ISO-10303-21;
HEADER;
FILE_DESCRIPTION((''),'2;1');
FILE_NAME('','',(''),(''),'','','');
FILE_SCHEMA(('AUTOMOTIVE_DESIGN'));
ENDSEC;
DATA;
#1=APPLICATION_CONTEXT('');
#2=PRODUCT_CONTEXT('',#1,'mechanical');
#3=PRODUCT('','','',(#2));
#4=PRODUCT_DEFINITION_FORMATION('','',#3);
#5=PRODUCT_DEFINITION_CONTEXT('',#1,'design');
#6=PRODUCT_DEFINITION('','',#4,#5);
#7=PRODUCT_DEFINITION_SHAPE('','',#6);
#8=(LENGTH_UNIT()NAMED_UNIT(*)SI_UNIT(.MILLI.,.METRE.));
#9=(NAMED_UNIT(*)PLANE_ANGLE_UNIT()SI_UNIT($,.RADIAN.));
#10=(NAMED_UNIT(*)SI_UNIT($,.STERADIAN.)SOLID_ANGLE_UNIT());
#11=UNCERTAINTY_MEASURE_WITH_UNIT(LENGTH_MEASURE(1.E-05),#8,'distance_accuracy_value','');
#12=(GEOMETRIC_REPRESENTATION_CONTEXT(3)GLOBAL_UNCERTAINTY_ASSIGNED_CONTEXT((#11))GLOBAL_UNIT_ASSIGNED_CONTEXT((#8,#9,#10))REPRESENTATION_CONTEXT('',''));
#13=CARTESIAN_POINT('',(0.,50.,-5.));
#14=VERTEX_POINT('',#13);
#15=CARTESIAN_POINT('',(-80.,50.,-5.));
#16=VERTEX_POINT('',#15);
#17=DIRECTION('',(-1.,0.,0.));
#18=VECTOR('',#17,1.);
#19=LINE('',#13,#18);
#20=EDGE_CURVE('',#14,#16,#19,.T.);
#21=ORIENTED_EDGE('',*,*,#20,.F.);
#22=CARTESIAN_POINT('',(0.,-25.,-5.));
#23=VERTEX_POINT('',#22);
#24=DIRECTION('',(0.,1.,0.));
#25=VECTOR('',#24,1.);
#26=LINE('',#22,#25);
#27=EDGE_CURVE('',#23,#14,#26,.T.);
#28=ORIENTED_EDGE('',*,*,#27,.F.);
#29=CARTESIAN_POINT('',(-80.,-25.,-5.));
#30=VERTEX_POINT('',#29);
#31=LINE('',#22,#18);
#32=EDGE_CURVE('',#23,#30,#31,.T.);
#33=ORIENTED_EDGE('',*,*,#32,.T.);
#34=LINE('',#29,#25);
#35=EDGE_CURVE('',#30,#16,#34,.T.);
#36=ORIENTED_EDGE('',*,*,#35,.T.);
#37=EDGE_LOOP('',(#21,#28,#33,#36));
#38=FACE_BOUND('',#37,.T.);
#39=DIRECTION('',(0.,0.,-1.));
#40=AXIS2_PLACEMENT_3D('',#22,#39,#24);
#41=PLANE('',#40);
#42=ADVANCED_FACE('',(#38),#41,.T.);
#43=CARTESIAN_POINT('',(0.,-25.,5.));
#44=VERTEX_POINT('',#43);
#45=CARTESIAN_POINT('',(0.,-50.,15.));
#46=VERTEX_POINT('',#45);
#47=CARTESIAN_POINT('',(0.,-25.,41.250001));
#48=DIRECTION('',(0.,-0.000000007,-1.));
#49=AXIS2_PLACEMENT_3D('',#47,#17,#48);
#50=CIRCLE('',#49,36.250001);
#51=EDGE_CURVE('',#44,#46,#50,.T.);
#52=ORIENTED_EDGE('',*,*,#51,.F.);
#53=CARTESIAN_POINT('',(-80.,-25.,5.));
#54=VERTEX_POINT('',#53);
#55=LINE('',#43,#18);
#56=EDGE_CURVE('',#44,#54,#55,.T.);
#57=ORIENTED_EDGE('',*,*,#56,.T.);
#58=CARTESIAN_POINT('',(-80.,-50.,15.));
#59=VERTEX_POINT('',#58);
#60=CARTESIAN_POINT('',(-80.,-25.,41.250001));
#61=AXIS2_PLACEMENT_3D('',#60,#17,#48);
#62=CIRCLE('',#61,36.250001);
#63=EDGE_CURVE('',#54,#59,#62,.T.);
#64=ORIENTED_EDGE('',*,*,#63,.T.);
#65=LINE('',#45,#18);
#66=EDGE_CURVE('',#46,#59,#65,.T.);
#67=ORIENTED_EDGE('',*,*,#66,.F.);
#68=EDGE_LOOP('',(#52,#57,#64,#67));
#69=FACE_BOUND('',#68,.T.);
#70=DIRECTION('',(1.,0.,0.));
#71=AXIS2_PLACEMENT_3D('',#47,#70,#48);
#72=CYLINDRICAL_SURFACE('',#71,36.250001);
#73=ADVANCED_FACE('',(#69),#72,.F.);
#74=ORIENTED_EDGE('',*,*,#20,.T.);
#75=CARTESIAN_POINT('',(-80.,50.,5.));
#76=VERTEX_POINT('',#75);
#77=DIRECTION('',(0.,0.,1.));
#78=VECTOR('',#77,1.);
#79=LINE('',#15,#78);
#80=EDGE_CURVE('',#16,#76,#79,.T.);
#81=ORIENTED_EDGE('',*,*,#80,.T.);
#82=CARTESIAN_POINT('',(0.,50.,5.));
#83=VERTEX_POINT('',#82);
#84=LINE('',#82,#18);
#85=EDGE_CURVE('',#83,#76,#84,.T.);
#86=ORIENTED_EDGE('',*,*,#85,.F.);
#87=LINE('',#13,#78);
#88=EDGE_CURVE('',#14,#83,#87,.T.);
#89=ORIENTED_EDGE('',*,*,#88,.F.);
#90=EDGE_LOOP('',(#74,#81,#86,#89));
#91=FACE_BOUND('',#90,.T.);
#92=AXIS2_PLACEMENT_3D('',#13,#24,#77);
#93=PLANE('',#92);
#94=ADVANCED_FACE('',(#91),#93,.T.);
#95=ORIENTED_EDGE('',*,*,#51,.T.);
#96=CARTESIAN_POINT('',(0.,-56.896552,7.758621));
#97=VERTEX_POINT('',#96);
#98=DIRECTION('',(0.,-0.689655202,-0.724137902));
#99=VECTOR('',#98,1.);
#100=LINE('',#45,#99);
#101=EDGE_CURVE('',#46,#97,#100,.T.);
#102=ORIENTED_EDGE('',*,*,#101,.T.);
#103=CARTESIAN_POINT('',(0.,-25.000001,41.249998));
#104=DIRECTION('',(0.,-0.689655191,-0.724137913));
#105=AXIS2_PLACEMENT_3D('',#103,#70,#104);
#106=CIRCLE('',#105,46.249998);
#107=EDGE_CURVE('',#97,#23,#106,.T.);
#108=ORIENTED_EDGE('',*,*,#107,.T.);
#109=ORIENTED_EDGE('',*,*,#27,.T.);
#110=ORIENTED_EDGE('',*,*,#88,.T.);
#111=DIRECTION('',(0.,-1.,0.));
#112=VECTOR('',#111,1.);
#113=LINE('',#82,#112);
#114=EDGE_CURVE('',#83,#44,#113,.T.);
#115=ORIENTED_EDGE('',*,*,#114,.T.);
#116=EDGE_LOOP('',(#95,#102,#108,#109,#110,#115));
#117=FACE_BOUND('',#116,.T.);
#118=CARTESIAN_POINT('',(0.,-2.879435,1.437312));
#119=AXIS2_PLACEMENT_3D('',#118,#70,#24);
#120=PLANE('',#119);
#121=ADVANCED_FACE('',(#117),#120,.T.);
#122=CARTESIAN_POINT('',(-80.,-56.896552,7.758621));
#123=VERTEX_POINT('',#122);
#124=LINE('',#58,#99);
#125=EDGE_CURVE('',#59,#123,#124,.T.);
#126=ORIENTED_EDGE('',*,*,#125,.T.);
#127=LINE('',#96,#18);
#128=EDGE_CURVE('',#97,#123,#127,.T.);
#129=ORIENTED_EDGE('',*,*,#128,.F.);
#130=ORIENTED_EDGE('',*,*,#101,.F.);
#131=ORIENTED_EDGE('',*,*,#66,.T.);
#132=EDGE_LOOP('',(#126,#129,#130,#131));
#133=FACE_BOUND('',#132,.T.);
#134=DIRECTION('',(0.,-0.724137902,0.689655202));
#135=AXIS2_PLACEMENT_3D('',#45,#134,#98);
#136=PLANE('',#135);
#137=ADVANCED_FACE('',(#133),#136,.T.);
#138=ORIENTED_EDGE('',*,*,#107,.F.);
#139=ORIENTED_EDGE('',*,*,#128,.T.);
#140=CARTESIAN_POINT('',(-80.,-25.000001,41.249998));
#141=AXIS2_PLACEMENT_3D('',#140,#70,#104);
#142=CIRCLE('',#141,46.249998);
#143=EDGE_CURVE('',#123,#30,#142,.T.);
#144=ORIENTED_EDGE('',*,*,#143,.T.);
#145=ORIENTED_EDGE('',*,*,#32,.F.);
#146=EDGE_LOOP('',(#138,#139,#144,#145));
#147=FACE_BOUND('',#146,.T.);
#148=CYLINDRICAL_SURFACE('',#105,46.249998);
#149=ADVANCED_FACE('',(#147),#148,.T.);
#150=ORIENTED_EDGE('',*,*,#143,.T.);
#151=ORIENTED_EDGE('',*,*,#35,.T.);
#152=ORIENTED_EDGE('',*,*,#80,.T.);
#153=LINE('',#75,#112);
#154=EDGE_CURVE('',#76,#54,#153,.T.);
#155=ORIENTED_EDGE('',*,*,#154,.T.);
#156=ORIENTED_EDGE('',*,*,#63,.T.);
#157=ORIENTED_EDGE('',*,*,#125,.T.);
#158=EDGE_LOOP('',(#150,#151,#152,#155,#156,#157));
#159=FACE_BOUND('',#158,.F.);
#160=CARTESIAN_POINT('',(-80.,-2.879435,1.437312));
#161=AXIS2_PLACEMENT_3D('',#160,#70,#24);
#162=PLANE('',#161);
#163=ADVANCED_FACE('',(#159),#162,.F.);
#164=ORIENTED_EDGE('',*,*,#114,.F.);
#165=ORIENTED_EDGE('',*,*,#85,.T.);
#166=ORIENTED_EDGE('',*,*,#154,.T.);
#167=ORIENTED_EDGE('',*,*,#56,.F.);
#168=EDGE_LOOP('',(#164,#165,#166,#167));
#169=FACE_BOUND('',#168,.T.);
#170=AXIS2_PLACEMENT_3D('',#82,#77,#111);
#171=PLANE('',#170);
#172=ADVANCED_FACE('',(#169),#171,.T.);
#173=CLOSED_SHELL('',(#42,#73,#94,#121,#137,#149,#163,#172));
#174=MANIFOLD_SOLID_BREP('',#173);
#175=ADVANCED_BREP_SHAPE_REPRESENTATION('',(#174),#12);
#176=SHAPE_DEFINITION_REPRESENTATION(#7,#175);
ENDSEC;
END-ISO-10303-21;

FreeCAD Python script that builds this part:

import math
import FreeCAD as App
import Part
import Sketcher
from FreeCAD import Vector

doc = App.newDocument("Part")
body = doc.addObject("PartDesign::Body", "Body")

# Sketch on YZ plane
sketch1 = body.newObject("Sketcher::SketchObject", "Sketch")
sketch1.AttachmentSupport = (doc.getObject("YZ_Plane"), [""])
sketch1.MapMode = "FlatFace"
sketch1.addGeometry([
    Part.LineSegment(Vector(-25, -5, 0), Vector(50, -5, 0)),  # 0
    Part.LineSegment(Vector(50, -5, 0), Vector(50, 5, 0)),  # 1
    Part.LineSegment(Vector(50, 5, 0), Vector(-25, 5, 0)),  # 2
    Part.ArcOfCircle(Part.Circle(Vector(-25, 41, 0), Vector(0, 0, 1), 36), math.radians(-134), math.radians(-90)),  # 3
    Part.LineSegment(Vector(-50, 15, 0), Vector(-57, 8, 0)),  # 4
    Part.ArcOfCircle(Part.Circle(Vector(-25, 41, 0), Vector(0, 0, 1), 46), math.radians(-134), math.radians(-90)),  # 5
], False)
sketch1.addConstraint([
    Sketcher.Constraint("Coincident", 0, 2, 1, 1),
    Sketcher.Constraint("Coincident", 1, 2, 2, 1),
    Sketcher.Constraint("Tangent", 2, 2, 3, 2),
    Sketcher.Constraint("Coincident", 3, 1, 4, 1),
    Sketcher.Constraint("Coincident", 4, 2, 5, 1),
    Sketcher.Constraint("Tangent", 5, 2, 0, 1),
    Sketcher.Constraint("Horizontal", 0),
    Sketcher.Constraint("Vertical", 1),
    Sketcher.Constraint("Horizontal", 2),
    Sketcher.Constraint("Coincident", 5, 3, 3, 3),
    Sketcher.Constraint("DistanceX", 0, 1, 0, 2, 75.0),
    Sketcher.Constraint("DistanceY", 1, 1, 1, 2, 10.0),
    Sketcher.Constraint("Radius", 3, 36.250001),
    Sketcher.Constraint("DistanceX", 3, 3, -1, 1, 25.0),
    Sketcher.Constraint("DistanceY", 0, 2, -1, 1, 5.0),
    Sketcher.Constraint("DistanceX", 3, 1, -1, 1, 50.0),
    Sketcher.Constraint("DistanceY", -1, 1, 4, 2, 7.758621),
])
pad1 = body.newObject("PartDesign::Pad", "Pad")
pad1.Profile = sketch1
pad1.Length = 80
pad1.Reversed = True

doc.recompute()
